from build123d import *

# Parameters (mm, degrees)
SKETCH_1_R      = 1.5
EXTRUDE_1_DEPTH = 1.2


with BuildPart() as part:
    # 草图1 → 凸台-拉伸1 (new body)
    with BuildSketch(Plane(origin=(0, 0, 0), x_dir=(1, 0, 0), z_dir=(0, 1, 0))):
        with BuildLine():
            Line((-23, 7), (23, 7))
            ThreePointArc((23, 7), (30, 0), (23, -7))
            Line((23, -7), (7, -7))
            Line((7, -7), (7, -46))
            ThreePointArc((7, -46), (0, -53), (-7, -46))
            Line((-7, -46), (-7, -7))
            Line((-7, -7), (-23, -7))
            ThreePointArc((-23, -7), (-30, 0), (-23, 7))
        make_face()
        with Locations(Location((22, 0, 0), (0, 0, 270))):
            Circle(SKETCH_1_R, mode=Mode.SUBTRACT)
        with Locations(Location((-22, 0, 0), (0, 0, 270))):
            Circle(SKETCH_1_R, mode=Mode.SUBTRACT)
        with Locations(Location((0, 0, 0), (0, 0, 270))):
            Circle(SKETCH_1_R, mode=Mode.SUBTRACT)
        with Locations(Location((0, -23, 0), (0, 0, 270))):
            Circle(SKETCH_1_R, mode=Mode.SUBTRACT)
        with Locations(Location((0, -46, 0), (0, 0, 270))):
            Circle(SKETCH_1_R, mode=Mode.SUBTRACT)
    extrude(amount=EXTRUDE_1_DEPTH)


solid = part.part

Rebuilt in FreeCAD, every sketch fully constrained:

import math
import FreeCAD as App
import Part
import Sketcher

V = App.Vector
Q = App.Units.Quantity

doc = App.newDocument("Part")
body = doc.addObject("PartDesign::Body", "Body")

sketch1 = body.newObject("Sketcher::SketchObject", "Sketch")
sketch1.AttachmentSupport = (doc.getObject("XZ_Plane"), [""])
sketch1.MapMode = "FlatFace"
sketch1.addGeometry([
    Part.LineSegment(V(23, -7, 0), V(-23, -7, 0)),
    Part.ArcOfCircle(Part.Circle(V(-23, 0, 0), V(0, 0, 1), 7), math.radians(90), math.radians(270)),
    Part.LineSegment(V(-23, 7, 0), V(-7, 7, 0)),
    Part.LineSegment(V(-7, 7, 0), V(-7, 46, 0)),
    Part.ArcOfCircle(Part.Circle(V(0, 46, 0), V(0, 0, 1), 7), math.radians(0), math.radians(180)),
    Part.LineSegment(V(7, 46, 0), V(7, 7, 0)),
    Part.LineSegment(V(7, 7, 0), V(23, 7, 0)),
    Part.ArcOfCircle(Part.Circle(V(23, 0, 0), V(0, 0, 1), 7), math.radians(-90), math.radians(90)),
    Part.Circle(V(0, 46, 0), V(0, 0, 1), 1.5),
    Part.Circle(V(0, 23, 0), V(0, 0, 1), 1.5),
    Part.Circle(V(22, 0, 0), V(0, 0, 1), 1.5),
    Part.Circle(V(0, 0, 0), V(0, 0, 1), 1.5),
    Part.Circle(V(-22, 0, 0), V(0, 0, 1), 1.5),
], False)
sketch1.addConstraint([
    Sketcher.Constraint("Tangent", 0, 2, 1, 2),
    Sketcher.Constraint("Tangent", 1, 1, 2, 1),
    Sketcher.Constraint("Coincident", 2, 2, 3, 1),
    Sketcher.Constraint("Tangent", 3, 2, 4, 2),
    Sketcher.Constraint("Tangent", 4, 1, 5, 1),
    Sketcher.Constraint("Coincident", 5, 2, 6, 1),
    Sketcher.Constraint("Tangent", 6, 2, 7, 2),
    Sketcher.Constraint("Tangent", 7, 1, 0, 1),
    Sketcher.Constraint("Horizontal", 0),
    Sketcher.Constraint("Horizontal", 2),
    Sketcher.Constraint("Vertical", 3),
    Sketcher.Constraint("Vertical", 5),
    Sketcher.Constraint("Horizontal", 6),
    Sketcher.Constraint("Coincident", 11, 3, -1, 1),
    Sketcher.Constraint("Coincident", 8, 3, 4, 3),
    Sketcher.Constraint("Equal", 1, 4),
    Sketcher.Constraint("Equal", 4, 7),
    Sketcher.Constraint("Equal", 8, 9),
    Sketcher.Constraint("Equal", 9, 10),
    Sketcher.Constraint("Equal", 10, 11),
    Sketcher.Constraint("Equal", 11, 12),
    Sketcher.Constraint("Symmetric", 1, 3, 7, 3, -1, 1),
    Sketcher.Constraint("Symmetric", 10, 3, 12, 3, -1, 1),
    Sketcher.Constraint("PointOnObject", 4, 3, -2),
    Sketcher.Constraint("PointOnObject", 9, 3, -2),
    Sketcher.Constraint("PointOnObject", 10, 3, -1),
    Sketcher.Constraint("Diameter", 8, Q("3 mm")),
    Sketcher.Constraint("Radius", 1, Q("7 mm")),
    Sketcher.Constraint("DistanceX", 0, 2, 0, 1, Q("46 mm")),
    Sketcher.Constraint("DistanceY", 3, 1, 3, 2, Q("39 mm")),
    Sketcher.Constraint("DistanceY", -1, 1, 9, 3, Q("23 mm")),
    Sketcher.Constraint("DistanceX", -1, 1, 10, 3, Q("22 mm")),
])
pad1 = body.newObject("PartDesign::Pad", "Pad")
pad1.Profile = sketch1
pad1.Length = 1.2
pad1.Reversed = True

doc.recompute()
